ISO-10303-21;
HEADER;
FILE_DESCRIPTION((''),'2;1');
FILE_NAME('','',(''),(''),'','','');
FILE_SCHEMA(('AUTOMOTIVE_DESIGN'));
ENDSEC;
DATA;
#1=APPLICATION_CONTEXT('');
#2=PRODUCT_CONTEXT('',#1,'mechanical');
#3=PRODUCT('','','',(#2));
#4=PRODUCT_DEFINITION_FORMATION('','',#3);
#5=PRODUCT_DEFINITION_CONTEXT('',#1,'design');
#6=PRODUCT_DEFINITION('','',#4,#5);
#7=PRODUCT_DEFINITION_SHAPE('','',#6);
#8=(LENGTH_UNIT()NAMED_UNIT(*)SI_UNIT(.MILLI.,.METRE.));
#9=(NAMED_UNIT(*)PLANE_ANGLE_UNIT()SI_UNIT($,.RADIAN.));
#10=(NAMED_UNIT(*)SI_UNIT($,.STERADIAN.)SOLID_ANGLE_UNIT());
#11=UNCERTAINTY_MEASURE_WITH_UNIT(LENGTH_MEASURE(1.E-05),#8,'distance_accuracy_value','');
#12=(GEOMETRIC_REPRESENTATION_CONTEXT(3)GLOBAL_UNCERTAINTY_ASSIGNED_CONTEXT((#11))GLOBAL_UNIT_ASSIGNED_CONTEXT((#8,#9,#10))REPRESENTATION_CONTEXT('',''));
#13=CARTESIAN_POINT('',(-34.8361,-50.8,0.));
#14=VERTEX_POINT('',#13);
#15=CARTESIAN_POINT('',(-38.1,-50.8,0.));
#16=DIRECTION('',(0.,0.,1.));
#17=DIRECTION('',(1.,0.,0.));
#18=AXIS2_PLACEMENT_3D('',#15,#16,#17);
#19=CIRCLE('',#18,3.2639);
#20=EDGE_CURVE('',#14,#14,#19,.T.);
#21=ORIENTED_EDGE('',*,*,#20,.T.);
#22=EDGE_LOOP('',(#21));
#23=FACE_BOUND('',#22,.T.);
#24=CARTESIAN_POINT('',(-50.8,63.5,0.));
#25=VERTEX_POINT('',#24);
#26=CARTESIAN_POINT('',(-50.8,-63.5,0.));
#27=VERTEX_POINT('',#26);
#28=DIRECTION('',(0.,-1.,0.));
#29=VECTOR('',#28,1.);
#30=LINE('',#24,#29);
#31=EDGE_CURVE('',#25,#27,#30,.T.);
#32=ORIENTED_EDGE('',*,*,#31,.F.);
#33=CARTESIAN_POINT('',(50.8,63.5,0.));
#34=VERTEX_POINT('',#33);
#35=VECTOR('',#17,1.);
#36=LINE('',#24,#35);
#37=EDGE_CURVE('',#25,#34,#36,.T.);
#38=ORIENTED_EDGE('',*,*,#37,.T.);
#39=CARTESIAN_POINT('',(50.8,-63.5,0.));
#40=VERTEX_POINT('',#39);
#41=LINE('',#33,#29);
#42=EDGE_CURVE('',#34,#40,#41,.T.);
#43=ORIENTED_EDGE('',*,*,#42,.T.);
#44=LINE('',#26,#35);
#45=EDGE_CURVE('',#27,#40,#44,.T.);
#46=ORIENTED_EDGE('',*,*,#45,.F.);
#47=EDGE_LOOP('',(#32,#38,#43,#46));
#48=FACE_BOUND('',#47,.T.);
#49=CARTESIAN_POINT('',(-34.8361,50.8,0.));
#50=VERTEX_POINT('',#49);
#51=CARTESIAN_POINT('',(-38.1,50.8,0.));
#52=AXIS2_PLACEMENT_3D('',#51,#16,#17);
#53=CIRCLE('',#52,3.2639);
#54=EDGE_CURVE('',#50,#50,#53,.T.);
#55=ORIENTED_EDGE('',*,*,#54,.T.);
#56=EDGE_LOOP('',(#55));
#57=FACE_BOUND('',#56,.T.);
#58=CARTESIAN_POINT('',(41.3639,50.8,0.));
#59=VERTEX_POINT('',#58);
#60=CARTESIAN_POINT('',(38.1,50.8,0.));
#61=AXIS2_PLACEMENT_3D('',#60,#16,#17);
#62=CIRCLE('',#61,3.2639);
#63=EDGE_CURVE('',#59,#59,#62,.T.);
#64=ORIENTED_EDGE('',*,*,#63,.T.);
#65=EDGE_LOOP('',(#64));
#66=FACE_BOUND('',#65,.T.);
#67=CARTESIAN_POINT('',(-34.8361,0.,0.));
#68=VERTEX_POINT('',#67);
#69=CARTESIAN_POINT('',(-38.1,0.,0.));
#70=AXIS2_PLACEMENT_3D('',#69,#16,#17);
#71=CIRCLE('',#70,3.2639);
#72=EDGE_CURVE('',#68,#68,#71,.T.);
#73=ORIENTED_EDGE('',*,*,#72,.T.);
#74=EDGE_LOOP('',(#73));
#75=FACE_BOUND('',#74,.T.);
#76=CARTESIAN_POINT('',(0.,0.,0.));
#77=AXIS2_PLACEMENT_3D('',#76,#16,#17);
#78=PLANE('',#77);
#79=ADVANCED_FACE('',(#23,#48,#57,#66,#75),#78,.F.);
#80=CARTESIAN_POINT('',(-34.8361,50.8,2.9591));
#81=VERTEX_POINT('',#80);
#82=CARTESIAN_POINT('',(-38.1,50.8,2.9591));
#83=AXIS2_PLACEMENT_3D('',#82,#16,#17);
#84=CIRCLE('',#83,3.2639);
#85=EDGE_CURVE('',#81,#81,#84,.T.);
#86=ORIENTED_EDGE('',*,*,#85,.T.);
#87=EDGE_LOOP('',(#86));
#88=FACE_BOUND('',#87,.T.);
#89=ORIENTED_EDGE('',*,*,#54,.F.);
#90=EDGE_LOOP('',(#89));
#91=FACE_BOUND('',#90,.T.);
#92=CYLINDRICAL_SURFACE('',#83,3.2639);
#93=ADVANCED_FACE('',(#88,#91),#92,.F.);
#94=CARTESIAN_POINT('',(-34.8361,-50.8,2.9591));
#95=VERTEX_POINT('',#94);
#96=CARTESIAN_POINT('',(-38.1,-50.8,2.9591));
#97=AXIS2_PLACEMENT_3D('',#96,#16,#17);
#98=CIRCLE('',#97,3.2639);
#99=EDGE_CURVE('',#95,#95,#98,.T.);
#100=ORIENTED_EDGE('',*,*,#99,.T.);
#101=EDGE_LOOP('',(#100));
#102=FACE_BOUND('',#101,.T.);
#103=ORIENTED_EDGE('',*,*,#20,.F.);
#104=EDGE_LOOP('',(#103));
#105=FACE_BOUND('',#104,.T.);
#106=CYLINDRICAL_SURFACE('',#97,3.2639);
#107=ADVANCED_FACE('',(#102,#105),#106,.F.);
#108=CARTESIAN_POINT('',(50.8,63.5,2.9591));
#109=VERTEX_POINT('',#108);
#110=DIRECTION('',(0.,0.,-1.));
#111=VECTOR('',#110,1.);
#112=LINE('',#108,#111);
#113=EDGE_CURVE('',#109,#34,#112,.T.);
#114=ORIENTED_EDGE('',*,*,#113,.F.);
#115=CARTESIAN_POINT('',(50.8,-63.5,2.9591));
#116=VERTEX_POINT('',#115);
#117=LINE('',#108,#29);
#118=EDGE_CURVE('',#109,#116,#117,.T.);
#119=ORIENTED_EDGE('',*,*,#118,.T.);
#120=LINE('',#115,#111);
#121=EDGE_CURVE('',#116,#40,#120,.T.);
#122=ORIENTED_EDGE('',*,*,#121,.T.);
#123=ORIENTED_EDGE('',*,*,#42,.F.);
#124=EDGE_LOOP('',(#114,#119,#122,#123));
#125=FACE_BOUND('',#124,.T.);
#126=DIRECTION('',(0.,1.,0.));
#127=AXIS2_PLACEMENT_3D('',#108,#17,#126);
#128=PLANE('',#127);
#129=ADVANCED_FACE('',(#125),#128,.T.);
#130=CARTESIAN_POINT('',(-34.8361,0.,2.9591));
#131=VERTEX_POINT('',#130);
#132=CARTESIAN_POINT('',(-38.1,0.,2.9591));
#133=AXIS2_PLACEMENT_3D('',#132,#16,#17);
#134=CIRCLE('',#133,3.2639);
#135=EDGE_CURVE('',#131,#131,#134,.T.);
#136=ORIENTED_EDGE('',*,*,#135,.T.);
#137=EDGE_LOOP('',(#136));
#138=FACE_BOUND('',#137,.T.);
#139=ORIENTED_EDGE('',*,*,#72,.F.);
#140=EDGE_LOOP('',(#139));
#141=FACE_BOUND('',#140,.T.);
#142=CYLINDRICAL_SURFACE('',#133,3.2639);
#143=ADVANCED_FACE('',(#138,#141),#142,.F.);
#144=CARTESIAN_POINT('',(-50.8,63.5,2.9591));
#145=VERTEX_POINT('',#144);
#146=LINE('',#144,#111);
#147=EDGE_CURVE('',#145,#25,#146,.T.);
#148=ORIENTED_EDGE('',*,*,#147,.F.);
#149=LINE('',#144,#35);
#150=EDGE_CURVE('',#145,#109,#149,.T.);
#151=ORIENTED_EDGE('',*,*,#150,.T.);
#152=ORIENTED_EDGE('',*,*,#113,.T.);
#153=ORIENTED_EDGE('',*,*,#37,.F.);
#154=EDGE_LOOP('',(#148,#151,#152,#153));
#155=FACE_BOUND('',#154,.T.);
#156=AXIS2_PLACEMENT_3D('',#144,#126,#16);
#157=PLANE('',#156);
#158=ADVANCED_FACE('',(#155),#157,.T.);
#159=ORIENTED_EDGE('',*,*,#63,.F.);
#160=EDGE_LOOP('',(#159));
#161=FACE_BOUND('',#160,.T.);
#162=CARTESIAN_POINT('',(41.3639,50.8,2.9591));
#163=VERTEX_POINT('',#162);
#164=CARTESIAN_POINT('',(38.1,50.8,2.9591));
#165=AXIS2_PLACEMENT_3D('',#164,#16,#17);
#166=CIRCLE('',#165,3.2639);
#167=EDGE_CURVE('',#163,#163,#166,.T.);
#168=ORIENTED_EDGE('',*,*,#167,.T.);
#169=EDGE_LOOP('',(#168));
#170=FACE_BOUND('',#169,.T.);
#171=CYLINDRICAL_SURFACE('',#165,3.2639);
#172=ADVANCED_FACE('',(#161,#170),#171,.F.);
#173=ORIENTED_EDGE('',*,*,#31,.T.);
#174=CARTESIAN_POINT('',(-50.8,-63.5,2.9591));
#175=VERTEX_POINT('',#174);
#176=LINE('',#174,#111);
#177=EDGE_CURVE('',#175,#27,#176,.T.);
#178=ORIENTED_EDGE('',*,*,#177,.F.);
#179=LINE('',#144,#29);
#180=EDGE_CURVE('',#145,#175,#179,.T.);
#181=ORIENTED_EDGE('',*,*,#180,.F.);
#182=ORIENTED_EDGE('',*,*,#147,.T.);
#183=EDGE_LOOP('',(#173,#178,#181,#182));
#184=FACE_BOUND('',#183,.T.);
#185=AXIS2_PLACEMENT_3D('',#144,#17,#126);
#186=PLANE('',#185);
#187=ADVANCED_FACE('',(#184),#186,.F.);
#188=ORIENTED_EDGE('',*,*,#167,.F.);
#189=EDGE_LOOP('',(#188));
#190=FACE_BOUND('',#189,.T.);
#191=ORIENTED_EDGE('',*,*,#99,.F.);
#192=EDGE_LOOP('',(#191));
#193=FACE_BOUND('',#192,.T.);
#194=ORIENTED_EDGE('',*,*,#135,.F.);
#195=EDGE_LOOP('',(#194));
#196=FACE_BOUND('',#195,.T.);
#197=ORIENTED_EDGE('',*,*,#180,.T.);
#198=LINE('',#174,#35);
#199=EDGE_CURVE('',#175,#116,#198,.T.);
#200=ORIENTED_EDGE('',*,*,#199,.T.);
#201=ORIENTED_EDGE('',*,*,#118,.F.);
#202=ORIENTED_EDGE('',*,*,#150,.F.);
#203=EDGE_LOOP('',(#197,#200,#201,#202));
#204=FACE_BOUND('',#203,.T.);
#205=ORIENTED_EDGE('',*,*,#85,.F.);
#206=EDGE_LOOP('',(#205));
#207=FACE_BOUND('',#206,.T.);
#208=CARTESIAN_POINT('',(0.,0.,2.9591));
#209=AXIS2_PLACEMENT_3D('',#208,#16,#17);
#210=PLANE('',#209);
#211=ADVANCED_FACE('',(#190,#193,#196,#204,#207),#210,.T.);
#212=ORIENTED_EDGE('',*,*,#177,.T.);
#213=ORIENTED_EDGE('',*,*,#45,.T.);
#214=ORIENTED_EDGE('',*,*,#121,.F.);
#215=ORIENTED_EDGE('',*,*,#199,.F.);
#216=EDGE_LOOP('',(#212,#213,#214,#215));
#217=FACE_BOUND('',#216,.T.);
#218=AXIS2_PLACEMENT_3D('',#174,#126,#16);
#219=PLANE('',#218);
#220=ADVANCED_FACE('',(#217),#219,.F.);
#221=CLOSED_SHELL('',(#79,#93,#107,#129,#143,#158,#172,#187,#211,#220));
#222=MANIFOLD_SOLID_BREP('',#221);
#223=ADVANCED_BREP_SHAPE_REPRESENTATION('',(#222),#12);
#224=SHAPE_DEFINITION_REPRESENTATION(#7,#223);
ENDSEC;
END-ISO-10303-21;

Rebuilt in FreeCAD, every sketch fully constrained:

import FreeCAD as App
import Part
import Sketcher
Q = App.Units.Quantity


def add_polygon(sketch, points):
    """Adds a closed chain of lines whose ends are joined by coincident constraints."""
    first, n = sketch.GeometryCount, len(points)
    for a, b in zip(points, points[1:] + points[:1]):
        sketch.addGeometry(Part.LineSegment(App.Vector(*a, 0), App.Vector(*b, 0)), False)
    for i in range(n):
        sketch.addConstraint(Sketcher.Constraint("Coincident", first + i, 2, first + (i + 1) % n, 1))

doc = App.newDocument("Part")
body = doc.addObject("PartDesign::Body", "Body")

# Sketch on XY plane
sketch1 = doc.addObject("Sketcher::SketchObject", "Sketch")
body.addObject(sketch1)
sketch1.AttachmentSupport = (doc.XY_Plane, [""])
sketch1.MapMode = "FlatFace"
add_polygon(sketch1, [(-51, 64), (-51, -64), (51, -64), (51, 64)])  # lines 0-3
sketch1.addConstraint(Sketcher.Constraint("Vertical", 0))
sketch1.addConstraint(Sketcher.Constraint("Horizontal", 1))
sketch1.addConstraint(Sketcher.Constraint("Vertical", 2))
sketch1.addConstraint(Sketcher.Constraint("Horizontal", 3))
sketch1.addConstraint(Sketcher.Constraint("Symmetric", 0, 2, 2, 2, -1, 1))
sketch1.addConstraint(Sketcher.Constraint("DistanceX", 1, 1, 1, 2, Q("4 in")))
sketch1.addConstraint(Sketcher.Constraint("DistanceY", 0, 2, 0, 1, Q("5 in")))
pad1 = doc.addObject("PartDesign::Pad", "Pad")
body.addObject(pad1)
pad1.Profile = sketch1
pad1.Length = Q("0.1165 in")

# Sketch on XY plane
sketch2 = doc.addObject("Sketcher::SketchObject", "Sketch001")
body.addObject(sketch2)
sketch2.AttachmentSupport = (doc.XY_Plane, [""])
sketch2.MapMode = "FlatFace"
sketch2.AttachmentOffset = App.Placement(App.Vector(0, 0, 0.1165 * 25.4), App.Rotation())
sketch2.addGeometry(Part.Circle(App.Vector(-38.1, 50.8, 0), App.Vector(0, 0, 1), 3.3), False)
sketch2.addGeometry(Part.Circle(App.Vector(38.1, 50.8, 0), App.Vector(0, 0, 1), 3.3), False)
sketch2.addGeometry(Part.Circle(App.Vector(-38.1, -50.8, 0), App.Vector(0, 0, 1), 3.3), False)
sketch2.addGeometry(Part.Circle(App.Vector(-38.1, 0, 0), App.Vector(0, 0, 1), 3.3), False)
sketch2.addConstraint(Sketcher.Constraint("Equal", 0, 1))
sketch2.addConstraint(Sketcher.Constraint("Equal", 1, 2))
sketch2.addConstraint(Sketcher.Constraint("Equal", 2, 3))
sketch2.addConstraint(Sketcher.Constraint("Symmetric", 1, 3, 2, 3, -1, 1))
sketch2.addConstraint(Sketcher.Constraint("Symmetric", 0, 3, 1, 3, -2))
sketch2.addConstraint(Sketcher.Constraint("PointOnObject", 3, 3, -1))
sketch2.addConstraint(Sketcher.Constraint("Vertical", 2, 3, 3, 3))
sketch2.addConstraint(Sketcher.Constraint("Diameter", 0, Q("0.257 in")))
sketch2.addConstraint(Sketcher.Constraint("DistanceY", -1, 1, 0, 3, Q("2 in")))
sketch2.addConstraint(Sketcher.Constraint("DistanceX", 0, 3, 1, 3, Q("3 in")))
doc.recompute()
hole = doc.addObject("PartDesign::Hole", "Hole")
body.addObject(hole)
hole.Profile = sketch2
hole.ThreadType = "None"
hole.Diameter = Q("0.257 in")
hole.DepthType = "Dimension"
hole.Depth = Q("0.13 in")
hole.DrillPoint = "Angled"
hole.DrillPointAngle = 118

doc.recompute()
